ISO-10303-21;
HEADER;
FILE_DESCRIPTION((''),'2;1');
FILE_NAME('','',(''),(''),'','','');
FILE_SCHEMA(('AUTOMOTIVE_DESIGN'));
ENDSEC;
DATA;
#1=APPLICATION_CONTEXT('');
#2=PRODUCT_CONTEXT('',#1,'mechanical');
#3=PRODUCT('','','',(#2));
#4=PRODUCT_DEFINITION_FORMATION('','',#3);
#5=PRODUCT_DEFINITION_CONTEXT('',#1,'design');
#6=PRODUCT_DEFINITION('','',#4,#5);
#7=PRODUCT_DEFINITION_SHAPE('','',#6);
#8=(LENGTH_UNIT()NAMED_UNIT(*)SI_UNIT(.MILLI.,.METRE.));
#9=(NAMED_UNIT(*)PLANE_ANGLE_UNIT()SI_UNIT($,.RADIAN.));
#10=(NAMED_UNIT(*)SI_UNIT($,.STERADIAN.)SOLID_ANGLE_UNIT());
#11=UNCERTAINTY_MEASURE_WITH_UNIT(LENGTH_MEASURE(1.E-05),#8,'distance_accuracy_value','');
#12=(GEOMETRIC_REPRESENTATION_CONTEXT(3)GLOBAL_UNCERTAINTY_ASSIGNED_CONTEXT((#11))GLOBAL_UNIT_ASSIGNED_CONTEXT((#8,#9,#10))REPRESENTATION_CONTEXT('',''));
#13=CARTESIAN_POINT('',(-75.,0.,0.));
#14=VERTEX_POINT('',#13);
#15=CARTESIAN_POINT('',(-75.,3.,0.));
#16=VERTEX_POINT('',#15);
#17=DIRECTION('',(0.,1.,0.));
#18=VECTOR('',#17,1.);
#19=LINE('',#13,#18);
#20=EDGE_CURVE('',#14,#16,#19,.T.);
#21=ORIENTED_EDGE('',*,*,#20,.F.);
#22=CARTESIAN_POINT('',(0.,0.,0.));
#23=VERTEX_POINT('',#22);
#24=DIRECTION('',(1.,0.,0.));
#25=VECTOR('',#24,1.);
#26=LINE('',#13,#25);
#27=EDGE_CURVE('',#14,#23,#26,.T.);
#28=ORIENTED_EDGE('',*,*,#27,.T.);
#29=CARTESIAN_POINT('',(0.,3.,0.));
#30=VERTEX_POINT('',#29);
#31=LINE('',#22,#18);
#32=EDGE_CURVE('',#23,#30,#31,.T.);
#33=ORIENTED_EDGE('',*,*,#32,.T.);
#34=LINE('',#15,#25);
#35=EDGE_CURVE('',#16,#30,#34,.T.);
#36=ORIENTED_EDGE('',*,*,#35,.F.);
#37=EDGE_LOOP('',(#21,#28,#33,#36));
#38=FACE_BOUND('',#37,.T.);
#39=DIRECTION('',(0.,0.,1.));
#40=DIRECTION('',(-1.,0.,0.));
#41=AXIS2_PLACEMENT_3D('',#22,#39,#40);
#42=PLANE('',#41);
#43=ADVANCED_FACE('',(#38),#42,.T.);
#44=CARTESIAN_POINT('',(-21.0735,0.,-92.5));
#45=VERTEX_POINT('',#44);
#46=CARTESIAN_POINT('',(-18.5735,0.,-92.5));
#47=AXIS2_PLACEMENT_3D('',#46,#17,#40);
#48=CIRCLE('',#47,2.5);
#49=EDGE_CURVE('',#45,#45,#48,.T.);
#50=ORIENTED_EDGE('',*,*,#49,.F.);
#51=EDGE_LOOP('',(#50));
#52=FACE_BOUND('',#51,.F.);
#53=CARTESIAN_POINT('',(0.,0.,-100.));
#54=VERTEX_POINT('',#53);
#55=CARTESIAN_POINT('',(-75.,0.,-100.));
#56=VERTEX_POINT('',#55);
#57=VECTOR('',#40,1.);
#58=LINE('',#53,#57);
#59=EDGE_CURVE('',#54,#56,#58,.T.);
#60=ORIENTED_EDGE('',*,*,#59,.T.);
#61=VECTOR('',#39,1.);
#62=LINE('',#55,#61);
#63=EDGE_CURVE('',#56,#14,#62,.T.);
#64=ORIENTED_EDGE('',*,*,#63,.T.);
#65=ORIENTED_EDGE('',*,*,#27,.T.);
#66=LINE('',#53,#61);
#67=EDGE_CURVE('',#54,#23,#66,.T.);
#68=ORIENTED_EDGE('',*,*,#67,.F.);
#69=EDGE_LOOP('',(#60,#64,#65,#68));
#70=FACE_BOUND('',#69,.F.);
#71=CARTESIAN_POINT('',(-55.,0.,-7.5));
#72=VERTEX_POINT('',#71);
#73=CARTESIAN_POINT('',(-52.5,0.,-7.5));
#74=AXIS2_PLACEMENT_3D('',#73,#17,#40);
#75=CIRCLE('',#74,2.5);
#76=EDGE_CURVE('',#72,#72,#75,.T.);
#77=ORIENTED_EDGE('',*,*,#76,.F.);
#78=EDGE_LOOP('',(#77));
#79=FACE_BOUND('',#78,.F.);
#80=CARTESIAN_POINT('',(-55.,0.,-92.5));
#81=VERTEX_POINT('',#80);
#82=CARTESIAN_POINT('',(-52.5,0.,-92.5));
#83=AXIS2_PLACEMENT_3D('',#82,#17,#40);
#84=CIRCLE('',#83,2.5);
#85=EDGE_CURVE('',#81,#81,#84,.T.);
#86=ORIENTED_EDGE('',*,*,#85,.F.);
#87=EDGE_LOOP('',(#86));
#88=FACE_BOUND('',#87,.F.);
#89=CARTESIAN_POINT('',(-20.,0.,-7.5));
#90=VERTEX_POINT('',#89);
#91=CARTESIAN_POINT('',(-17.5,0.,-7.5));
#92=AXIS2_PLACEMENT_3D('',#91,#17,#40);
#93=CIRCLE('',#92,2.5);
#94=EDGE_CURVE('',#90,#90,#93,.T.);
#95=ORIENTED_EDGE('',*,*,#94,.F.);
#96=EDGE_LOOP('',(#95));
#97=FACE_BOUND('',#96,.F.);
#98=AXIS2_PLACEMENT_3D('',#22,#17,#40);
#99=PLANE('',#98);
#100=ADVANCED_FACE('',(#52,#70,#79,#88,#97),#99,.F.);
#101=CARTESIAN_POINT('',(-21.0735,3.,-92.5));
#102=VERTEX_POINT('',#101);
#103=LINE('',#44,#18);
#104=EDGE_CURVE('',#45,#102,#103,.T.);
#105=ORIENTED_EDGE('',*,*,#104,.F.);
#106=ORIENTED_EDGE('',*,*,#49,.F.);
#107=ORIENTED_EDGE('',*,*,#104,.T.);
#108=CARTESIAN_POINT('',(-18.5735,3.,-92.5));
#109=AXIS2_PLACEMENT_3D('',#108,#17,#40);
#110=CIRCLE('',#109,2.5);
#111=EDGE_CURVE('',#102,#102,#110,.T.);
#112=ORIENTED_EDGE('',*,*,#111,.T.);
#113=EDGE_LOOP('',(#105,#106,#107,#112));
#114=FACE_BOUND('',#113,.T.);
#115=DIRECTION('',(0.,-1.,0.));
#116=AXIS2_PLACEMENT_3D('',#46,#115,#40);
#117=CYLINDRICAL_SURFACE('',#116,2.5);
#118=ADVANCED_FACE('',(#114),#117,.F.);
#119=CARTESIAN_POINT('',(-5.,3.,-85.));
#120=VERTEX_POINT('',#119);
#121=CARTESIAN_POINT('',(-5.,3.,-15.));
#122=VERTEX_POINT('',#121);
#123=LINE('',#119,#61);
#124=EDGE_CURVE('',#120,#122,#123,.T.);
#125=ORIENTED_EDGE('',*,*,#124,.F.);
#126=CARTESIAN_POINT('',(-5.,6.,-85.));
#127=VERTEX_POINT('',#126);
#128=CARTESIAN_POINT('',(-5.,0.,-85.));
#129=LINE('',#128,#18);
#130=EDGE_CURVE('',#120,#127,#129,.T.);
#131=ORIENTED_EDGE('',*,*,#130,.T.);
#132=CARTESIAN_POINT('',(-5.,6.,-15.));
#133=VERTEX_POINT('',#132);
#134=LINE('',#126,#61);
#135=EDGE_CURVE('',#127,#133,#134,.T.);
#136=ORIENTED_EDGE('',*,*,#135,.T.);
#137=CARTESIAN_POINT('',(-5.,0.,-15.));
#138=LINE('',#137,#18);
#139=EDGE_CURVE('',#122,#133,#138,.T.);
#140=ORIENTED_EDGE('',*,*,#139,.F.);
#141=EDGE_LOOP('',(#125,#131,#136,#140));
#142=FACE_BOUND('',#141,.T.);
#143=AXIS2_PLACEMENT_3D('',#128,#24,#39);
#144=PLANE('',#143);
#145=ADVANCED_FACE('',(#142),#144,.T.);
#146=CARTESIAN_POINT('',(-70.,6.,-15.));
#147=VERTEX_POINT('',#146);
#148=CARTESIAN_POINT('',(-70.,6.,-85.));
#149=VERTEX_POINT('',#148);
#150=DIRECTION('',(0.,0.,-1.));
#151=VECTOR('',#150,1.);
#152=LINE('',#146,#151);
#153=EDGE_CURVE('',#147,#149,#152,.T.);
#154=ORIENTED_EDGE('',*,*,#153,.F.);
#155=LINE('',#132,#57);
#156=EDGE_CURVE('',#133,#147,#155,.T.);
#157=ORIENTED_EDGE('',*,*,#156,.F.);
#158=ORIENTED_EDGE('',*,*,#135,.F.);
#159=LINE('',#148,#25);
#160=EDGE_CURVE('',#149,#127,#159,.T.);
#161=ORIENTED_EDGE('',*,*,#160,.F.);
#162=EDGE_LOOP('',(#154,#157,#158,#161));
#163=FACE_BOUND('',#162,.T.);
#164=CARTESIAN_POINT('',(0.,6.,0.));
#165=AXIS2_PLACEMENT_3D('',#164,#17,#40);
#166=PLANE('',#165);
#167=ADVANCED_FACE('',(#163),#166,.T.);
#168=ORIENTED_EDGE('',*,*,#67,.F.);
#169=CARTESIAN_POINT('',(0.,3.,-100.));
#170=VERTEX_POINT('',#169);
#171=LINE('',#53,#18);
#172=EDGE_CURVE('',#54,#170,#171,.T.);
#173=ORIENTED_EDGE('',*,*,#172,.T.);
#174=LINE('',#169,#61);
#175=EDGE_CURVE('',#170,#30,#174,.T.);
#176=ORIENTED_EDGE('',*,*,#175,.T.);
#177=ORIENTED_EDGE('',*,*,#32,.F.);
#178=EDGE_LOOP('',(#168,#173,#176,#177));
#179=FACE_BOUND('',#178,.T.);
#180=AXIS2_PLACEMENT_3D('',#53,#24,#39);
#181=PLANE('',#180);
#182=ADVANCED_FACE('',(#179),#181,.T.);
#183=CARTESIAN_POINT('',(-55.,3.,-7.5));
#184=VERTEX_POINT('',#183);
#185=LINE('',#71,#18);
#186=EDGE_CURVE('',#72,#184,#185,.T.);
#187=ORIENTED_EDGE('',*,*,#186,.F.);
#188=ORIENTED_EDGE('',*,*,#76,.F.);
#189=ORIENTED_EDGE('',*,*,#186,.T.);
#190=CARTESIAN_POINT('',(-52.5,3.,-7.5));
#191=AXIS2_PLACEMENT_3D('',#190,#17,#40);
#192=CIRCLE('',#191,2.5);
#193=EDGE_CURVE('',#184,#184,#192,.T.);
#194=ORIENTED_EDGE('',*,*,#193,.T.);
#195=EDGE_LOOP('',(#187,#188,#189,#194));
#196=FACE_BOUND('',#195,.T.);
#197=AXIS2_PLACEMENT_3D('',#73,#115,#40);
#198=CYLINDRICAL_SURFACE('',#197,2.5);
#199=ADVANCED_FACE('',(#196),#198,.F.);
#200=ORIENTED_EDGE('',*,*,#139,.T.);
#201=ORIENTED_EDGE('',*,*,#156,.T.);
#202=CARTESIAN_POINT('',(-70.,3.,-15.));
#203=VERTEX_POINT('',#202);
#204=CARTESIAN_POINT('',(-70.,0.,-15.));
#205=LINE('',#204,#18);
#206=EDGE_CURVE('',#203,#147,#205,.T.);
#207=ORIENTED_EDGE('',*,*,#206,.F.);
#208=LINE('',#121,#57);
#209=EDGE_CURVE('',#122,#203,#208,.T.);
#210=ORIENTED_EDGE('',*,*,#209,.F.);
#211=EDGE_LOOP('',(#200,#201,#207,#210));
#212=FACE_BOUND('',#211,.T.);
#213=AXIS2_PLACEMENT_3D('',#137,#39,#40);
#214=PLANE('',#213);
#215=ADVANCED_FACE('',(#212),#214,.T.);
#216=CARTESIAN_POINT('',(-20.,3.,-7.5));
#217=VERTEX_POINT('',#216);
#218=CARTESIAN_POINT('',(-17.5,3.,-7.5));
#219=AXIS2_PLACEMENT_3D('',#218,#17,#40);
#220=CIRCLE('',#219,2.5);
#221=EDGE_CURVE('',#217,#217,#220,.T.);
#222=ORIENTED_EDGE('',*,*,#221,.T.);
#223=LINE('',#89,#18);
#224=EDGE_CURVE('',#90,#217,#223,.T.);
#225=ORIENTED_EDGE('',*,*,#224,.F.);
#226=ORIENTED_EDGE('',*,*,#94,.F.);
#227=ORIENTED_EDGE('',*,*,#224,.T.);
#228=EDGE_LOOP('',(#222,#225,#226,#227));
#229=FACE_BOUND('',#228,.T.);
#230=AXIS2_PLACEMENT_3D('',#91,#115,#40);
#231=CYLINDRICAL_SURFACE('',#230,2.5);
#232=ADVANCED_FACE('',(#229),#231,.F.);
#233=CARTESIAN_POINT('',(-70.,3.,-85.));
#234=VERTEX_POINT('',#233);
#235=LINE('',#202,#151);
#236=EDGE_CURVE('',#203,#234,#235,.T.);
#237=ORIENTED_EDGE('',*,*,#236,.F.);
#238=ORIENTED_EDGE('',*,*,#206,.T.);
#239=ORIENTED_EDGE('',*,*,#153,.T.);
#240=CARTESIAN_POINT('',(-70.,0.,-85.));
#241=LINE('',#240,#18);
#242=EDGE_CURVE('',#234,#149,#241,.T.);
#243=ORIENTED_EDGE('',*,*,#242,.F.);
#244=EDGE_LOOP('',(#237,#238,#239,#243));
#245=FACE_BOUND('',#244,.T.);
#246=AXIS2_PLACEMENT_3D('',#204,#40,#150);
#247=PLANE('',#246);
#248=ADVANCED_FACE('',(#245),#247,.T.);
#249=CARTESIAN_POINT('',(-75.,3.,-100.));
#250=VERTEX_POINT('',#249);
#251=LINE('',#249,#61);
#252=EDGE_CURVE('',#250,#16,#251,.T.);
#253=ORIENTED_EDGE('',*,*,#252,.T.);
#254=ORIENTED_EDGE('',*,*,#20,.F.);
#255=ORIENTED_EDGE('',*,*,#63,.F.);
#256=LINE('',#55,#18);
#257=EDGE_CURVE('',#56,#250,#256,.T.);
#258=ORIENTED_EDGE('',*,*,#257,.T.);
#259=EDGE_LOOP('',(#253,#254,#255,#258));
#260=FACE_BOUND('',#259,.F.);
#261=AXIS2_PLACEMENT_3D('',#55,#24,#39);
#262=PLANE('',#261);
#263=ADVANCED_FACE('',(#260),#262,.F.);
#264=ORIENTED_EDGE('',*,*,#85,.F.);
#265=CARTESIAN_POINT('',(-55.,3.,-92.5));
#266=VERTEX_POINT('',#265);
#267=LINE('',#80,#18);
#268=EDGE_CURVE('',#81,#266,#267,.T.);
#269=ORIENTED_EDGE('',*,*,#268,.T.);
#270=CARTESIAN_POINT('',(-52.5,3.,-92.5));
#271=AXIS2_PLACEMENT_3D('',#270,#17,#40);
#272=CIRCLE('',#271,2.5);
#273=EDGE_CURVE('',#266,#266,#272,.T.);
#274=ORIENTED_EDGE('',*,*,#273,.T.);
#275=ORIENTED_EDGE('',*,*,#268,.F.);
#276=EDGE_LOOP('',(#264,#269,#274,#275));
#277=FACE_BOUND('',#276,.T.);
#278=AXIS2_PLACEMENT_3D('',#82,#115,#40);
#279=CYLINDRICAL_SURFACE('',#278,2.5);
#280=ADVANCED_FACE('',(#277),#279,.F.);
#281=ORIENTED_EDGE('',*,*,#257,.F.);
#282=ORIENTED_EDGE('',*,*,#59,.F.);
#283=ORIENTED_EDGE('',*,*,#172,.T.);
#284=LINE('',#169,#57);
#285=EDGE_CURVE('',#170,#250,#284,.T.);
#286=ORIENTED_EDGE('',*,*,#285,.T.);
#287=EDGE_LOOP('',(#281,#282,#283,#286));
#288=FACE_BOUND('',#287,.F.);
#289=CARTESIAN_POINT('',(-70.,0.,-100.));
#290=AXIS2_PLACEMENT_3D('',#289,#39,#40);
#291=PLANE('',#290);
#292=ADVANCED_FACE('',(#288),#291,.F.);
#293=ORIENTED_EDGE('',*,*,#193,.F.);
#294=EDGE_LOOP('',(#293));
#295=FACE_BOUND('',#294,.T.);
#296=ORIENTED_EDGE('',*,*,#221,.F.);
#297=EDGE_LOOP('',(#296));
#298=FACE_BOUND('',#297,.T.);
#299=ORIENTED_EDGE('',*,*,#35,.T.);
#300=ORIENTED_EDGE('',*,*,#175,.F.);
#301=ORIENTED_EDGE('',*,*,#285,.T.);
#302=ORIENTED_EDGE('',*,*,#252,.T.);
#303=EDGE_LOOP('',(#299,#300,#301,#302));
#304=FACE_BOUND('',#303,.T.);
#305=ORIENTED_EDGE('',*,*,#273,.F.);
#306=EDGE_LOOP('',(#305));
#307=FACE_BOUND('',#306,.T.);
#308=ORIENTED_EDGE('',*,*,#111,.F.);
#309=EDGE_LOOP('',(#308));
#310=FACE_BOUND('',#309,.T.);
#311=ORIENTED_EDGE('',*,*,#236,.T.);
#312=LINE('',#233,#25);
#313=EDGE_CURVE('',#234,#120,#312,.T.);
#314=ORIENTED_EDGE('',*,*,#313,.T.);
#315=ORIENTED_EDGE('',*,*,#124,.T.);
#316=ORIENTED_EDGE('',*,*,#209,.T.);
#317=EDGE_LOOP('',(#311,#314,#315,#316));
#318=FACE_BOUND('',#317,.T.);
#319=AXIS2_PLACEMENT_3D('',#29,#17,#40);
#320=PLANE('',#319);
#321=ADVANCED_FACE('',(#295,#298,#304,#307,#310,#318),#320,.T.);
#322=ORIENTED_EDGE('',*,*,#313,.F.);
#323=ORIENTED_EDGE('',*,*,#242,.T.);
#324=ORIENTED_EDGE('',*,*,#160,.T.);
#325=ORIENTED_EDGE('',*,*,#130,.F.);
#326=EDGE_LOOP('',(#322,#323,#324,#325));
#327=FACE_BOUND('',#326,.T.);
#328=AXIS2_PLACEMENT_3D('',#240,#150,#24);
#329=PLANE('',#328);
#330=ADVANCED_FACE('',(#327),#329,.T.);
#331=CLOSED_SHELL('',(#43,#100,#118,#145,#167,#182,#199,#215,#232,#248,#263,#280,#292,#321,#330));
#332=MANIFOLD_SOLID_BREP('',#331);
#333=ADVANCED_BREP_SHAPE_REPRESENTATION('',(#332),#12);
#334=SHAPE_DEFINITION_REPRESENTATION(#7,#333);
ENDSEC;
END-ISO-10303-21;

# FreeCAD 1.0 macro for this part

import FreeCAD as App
import Part
import Sketcher

V = App.Vector


def add_polygon(sketch, points):
    """Adds a closed chain of lines whose ends are joined by coincident constraints."""
    first, n = sketch.GeometryCount, len(points)
    for a, b in zip(points, points[1:] + points[:1]):
        sketch.addGeometry(Part.LineSegment(App.Vector(*a, 0), App.Vector(*b, 0)), False)
    for i in range(n):
        sketch.addConstraint(Sketcher.Constraint("Coincident", first + i, 2, first + (i + 1) % n, 1))

doc = App.newDocument("Part")
body = doc.addObject("PartDesign::Body", "Body")

# Sketch on XZ plane
sketch1 = doc.addObject("Sketcher::SketchObject", "Sketch")
body.addObject(sketch1)
sketch1.AttachmentSupport = (doc.XZ_Plane, [""])
sketch1.MapMode = "FlatFace"
add_polygon(sketch1, [(-5, -85), (-70, -85), (-70, -15), (-5, -15)])  # lines 0-3
sketch1.addConstraint([
    Sketcher.Constraint("Horizontal", 0),
    Sketcher.Constraint("Vertical", 1),
    Sketcher.Constraint("Horizontal", 2),
    Sketcher.Constraint("Vertical", 3),
    Sketcher.Constraint("DistanceX", 0, 2, 0, 1, 65.0),
    Sketcher.Constraint("DistanceY", 1, 1, 1, 2, 70.0),
    Sketcher.Constraint("DistanceX", 0, 2, -1, 1, 70.0),
    Sketcher.Constraint("DistanceY", 0, 2, -1, 1, 85.0),
])
pad1 = doc.addObject("PartDesign::Pad", "Pad")
body.addObject(pad1)
pad1.Profile = sketch1
pad1.Length = 6
pad1.Reversed = True

# Sketch on XZ plane
sketch2 = doc.addObject("Sketcher::SketchObject", "Sketch001")
body.addObject(sketch2)
sketch2.AttachmentSupport = (doc.XZ_Plane, [""])
sketch2.MapMode = "FlatFace"
add_polygon(sketch2, [(-75, 0), (0, 0), (0, -100), (-75, -100)])  # lines 0-3
sketch2.addGeometry(Part.Circle(V(-18.6, -92.5, 0), V(0, 0, 1), 2.5), False)  # 4
sketch2.addGeometry(Part.Circle(V(-52.5, -92.5, 0), V(0, 0, 1), 2.5), False)  # 5
sketch2.addGeometry(Part.Circle(V(-17.5, -7.5, 0), V(0, 0, 1), 2.5), False)  # 6
add_polygon(sketch2, [(-70, -15), (-70, -85), (-5, -85), (-5, -15)])  # lines 7-10
sketch2.addGeometry(Part.Circle(V(-52.5, -7.5, 0), V(0, 0, 1), 2.5), False)  # 11
sketch2.addConstraint([
    Sketcher.Constraint("Horizontal", 0),
    Sketcher.Constraint("Vertical", 1),
    Sketcher.Constraint("Horizontal", 2),
    Sketcher.Constraint("Vertical", 3),
    Sketcher.Constraint("Vertical", 7),
    Sketcher.Constraint("Horizontal", 8),
    Sketcher.Constraint("Vertical", 9),
    Sketcher.Constraint("Horizontal", 10),
    Sketcher.Constraint("Coincident", 0, 2, -1, 1),
    Sketcher.Constraint("Equal", 4, 5),
    Sketcher.Constraint("Equal", 5, 6),
    Sketcher.Constraint("Equal", 6, 11),
    Sketcher.Constraint("Horizontal", 4, 3, 5, 3),
    Sketcher.Constraint("Horizontal", 6, 3, 11, 3),
    Sketcher.Constraint("Vertical", 5, 3, 11, 3),
    Sketcher.Constraint("Diameter", 4, 5.0),
    Sketcher.Constraint("DistanceX", 8, 1, 8, 2, 65.0),
    Sketcher.Constraint("DistanceY", 1, 2, 1, 1, 100.0),
    Sketcher.Constraint("DistanceY", 7, 2, 7, 1, 70.0),
    Sketcher.Constraint("DistanceX", 7, 2, -1, 1, 70.0),
    Sketcher.Constraint("DistanceX", 2, 2, 7, 2, 5.0),
    Sketcher.Constraint("DistanceY", 7, 2, -1, 1, 85.0),
    Sketcher.Constraint("DistanceY", 4, 3, 6, 3, 85.0),
    Sketcher.Constraint("DistanceX", 5, 3, 6, 3, 35.0),
    Sketcher.Constraint("DistanceY", 4, 3, -1, 1, 92.5),
    Sketcher.Constraint("DistanceX", 5, 3, -1, 1, 52.5),
    Sketcher.Constraint("DistanceX", 4, 3, -1, 1, 18.5735),
])
pad2 = doc.addObject("PartDesign::Pad", "Pad001")
body.addObject(pad2)
pad2.Profile = sketch2
pad2.Length = 3
pad2.Reversed = True

doc.recompute()
